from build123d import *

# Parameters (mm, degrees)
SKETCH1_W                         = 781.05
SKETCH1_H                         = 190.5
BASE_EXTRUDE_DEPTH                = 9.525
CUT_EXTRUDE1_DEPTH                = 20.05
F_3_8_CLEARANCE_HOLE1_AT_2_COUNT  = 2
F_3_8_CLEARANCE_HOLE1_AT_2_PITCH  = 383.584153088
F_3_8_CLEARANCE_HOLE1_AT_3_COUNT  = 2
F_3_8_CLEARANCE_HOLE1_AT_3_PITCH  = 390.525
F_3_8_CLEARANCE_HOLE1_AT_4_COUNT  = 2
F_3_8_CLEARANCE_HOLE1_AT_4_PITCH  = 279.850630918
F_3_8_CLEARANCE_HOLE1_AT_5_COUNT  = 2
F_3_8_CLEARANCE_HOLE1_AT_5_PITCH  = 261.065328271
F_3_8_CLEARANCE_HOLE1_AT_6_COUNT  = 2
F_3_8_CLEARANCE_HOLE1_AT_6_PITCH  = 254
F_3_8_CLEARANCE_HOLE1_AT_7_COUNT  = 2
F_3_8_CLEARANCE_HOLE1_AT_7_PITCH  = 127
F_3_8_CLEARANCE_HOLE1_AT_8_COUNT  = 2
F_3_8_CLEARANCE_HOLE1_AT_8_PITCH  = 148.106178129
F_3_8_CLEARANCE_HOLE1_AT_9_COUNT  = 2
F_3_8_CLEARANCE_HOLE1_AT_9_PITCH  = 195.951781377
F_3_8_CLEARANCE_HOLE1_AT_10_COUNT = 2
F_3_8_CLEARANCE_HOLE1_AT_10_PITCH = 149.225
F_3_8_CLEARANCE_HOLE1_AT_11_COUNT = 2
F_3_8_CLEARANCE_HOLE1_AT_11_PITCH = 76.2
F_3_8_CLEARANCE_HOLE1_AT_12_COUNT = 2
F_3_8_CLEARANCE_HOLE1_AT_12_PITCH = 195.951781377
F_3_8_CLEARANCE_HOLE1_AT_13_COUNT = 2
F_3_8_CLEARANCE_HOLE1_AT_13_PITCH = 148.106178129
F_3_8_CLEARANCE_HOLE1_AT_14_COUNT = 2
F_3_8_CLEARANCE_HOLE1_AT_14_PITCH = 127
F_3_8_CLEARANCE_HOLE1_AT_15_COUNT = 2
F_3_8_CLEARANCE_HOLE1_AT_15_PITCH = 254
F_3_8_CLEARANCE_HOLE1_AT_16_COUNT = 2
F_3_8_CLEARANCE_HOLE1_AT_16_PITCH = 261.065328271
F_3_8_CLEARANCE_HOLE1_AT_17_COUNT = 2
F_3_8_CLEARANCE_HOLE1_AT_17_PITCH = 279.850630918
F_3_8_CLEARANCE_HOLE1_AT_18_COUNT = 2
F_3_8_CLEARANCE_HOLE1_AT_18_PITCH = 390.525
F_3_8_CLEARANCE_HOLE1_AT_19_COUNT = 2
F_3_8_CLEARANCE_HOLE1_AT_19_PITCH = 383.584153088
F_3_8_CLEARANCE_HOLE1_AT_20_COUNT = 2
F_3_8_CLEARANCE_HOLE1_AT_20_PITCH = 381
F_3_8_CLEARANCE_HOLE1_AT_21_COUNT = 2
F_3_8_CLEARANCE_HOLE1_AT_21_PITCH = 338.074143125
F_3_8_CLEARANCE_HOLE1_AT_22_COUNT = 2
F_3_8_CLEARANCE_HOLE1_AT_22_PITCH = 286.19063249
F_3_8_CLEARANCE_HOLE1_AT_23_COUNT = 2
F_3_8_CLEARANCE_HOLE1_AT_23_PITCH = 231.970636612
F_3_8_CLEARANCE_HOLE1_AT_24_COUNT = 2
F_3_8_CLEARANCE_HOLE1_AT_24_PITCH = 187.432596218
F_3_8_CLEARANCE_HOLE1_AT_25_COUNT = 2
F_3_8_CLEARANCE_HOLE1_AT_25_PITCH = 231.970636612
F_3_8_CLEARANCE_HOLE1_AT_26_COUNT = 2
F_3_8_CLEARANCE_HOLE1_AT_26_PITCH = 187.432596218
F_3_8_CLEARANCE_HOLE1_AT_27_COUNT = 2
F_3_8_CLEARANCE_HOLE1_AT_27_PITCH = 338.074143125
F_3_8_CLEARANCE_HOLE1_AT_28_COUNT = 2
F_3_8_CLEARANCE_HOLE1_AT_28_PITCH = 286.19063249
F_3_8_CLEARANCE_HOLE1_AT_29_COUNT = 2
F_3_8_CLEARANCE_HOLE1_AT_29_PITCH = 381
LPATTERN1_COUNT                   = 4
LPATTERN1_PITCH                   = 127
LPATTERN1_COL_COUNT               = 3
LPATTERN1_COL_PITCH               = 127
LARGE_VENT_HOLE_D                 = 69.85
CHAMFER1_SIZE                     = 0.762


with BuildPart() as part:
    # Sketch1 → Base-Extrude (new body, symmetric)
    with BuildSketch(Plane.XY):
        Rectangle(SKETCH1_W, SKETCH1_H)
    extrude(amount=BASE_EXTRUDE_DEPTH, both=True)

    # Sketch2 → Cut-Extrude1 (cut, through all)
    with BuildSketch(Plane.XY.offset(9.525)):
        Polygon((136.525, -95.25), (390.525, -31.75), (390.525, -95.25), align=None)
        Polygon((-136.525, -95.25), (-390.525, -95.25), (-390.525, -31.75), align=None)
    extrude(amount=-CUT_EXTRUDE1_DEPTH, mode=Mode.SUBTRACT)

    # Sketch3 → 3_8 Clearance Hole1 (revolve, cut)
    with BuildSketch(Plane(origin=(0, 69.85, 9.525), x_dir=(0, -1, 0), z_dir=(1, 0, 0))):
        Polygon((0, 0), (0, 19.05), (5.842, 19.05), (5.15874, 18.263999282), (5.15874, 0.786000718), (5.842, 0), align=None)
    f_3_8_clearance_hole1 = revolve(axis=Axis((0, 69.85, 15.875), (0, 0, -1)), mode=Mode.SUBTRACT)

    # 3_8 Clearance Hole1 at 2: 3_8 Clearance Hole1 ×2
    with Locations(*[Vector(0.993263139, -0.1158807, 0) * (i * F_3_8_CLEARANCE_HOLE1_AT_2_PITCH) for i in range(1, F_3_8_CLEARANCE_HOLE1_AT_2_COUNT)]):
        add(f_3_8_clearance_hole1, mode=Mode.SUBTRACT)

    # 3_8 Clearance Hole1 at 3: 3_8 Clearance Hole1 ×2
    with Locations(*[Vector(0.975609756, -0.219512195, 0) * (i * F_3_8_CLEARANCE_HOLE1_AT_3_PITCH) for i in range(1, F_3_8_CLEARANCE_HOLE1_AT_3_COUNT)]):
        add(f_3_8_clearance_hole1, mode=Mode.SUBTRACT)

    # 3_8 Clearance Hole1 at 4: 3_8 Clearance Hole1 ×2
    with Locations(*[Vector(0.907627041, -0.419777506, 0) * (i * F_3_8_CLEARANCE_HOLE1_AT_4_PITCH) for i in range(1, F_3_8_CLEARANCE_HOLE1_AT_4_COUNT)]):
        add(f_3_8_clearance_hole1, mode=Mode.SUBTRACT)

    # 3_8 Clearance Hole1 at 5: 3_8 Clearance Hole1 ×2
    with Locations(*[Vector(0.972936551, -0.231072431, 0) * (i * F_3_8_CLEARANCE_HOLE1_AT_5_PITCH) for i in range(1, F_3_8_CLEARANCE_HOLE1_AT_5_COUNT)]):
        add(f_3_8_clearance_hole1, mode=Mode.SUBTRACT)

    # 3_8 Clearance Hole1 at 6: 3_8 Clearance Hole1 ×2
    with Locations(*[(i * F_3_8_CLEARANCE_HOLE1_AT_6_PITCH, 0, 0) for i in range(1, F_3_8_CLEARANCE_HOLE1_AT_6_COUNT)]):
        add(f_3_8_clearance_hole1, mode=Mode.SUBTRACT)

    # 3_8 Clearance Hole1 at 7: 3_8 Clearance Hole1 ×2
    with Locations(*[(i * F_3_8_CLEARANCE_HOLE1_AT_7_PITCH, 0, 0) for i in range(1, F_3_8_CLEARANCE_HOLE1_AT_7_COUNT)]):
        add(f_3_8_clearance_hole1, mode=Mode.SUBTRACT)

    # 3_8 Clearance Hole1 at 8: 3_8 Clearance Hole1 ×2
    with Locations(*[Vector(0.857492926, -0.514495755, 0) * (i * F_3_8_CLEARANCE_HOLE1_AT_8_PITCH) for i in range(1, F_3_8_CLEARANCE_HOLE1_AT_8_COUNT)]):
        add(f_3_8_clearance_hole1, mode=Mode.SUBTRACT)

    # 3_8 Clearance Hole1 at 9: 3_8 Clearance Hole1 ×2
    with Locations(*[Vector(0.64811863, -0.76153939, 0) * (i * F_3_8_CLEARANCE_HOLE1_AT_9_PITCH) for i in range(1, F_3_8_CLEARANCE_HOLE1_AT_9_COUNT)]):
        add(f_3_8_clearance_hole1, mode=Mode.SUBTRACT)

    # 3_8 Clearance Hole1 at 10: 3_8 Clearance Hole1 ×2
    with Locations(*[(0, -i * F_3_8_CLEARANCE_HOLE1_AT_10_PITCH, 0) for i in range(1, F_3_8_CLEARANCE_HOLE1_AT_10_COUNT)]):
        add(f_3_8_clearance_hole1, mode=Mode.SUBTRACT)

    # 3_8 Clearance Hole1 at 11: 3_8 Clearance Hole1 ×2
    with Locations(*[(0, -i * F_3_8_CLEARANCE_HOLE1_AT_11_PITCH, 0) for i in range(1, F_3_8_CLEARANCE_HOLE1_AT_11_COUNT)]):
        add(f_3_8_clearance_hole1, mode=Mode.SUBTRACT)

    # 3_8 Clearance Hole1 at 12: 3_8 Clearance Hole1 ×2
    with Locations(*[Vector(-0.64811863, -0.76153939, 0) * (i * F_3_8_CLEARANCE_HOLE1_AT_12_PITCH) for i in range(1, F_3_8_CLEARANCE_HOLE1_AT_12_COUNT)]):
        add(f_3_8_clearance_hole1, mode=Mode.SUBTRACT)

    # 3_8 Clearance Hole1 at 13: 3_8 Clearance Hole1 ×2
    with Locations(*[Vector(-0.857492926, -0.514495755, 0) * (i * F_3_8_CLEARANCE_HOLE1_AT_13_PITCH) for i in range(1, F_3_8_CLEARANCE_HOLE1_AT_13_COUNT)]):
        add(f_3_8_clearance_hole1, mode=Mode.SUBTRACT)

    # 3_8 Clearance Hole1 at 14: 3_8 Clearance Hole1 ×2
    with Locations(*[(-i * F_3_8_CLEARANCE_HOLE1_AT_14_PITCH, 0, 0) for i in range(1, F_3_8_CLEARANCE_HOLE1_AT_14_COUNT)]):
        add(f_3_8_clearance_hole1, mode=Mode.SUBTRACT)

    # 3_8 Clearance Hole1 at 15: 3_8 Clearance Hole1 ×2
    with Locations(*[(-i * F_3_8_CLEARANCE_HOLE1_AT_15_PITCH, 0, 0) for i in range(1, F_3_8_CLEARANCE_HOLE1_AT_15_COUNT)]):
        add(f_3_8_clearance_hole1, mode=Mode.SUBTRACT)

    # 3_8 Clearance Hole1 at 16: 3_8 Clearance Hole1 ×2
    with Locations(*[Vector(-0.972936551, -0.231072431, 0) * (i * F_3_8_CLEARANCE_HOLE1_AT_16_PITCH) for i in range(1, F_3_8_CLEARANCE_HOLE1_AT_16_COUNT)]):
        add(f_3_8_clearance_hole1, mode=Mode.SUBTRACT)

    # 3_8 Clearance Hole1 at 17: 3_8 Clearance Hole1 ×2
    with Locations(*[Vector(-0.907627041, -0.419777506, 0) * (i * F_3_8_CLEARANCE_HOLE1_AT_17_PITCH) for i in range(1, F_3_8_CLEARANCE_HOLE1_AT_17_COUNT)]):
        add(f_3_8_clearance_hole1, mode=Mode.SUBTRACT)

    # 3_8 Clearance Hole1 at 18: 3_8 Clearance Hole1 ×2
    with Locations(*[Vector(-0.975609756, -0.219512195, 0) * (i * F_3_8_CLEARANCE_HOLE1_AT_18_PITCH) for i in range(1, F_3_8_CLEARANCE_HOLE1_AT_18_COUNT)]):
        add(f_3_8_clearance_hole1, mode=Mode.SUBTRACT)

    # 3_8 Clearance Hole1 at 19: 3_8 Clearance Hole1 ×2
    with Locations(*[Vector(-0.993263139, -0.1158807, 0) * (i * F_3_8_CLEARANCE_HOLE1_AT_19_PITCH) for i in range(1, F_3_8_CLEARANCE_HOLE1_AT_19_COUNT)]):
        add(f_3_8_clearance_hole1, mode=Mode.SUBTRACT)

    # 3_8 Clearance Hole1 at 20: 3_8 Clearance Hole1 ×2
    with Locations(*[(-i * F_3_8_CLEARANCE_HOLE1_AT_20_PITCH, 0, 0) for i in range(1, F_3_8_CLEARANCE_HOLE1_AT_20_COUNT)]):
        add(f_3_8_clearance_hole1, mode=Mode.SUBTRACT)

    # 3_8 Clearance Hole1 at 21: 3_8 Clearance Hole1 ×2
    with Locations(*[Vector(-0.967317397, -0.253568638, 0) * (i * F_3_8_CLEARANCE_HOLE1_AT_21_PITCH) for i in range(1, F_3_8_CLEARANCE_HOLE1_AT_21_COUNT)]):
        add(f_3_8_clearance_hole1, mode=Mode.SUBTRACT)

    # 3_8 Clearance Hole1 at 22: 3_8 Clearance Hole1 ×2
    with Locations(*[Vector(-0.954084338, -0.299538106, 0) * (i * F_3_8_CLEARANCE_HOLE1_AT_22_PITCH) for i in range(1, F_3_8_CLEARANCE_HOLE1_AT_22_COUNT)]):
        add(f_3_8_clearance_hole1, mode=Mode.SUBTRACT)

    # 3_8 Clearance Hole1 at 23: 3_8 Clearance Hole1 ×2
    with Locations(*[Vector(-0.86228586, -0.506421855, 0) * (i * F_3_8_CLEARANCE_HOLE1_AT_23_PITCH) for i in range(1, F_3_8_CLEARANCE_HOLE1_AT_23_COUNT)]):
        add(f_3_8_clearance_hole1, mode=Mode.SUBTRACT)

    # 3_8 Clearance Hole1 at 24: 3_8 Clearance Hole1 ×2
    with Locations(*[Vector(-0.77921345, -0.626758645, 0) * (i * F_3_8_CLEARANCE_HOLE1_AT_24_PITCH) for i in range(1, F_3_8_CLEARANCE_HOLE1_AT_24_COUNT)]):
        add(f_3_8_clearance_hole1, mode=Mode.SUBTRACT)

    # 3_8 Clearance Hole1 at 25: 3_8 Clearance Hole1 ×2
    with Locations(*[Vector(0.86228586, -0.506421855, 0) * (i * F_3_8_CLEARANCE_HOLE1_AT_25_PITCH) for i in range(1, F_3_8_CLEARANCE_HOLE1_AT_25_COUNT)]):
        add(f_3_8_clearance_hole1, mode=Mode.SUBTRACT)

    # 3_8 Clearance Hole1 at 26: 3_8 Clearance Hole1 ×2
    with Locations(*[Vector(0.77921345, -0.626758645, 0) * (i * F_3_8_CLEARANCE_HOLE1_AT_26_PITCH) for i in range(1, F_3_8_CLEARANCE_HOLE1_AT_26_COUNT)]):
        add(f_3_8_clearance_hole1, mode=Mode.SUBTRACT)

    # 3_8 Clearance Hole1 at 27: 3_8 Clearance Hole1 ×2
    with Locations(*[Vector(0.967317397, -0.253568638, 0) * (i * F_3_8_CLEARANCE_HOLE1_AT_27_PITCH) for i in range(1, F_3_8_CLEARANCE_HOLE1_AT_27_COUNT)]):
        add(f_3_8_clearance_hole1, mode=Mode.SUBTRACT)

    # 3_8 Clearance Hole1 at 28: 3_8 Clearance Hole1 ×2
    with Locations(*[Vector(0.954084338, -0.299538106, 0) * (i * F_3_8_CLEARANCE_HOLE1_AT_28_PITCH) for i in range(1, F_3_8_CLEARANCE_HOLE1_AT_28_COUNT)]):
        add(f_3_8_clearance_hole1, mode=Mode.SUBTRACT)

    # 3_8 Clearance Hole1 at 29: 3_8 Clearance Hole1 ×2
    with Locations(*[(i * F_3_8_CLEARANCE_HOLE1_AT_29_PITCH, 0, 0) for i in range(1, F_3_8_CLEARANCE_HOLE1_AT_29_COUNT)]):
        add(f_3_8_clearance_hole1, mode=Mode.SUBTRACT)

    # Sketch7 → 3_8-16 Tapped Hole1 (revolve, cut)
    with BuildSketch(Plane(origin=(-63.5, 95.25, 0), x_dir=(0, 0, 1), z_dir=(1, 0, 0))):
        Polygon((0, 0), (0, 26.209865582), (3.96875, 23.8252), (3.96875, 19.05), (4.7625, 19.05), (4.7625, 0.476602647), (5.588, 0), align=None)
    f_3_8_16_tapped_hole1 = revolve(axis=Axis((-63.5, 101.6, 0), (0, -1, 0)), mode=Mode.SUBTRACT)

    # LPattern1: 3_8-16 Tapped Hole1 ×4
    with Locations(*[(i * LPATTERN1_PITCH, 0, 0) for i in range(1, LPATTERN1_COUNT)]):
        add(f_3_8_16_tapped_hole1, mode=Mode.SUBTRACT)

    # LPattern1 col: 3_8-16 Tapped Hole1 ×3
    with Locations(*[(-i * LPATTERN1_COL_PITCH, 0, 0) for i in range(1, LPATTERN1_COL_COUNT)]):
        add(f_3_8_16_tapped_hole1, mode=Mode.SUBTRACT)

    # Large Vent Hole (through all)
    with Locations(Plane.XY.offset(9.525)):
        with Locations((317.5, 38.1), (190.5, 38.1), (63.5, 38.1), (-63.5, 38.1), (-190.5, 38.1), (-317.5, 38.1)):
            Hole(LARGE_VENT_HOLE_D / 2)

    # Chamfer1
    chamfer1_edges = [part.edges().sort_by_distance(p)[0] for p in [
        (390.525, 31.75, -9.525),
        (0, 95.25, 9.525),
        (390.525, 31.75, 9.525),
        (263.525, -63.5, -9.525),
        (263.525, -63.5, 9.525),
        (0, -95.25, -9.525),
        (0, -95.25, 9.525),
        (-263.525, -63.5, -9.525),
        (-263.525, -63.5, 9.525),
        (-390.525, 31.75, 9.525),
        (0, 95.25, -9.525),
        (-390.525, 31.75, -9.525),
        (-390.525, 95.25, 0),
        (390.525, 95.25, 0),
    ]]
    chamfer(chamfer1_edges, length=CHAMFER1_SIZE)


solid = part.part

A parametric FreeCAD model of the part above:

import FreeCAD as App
import Part
import Sketcher
Q = App.Units.Quantity


def edges_at(feature, points):
    """Names of the edges that pass closest to the given points."""
    edges = feature.Shape.Edges
    near = lambda p: min(range(len(edges)), key=lambda i: edges[i].distToShape(Part.Vertex(*p))[0])
    return sorted({f"Edge{near(p) + 1}" for p in points})


def add_polygon(sketch, points):
    """Adds a closed chain of lines whose ends are joined by coincident constraints."""
    first, n = sketch.GeometryCount, len(points)
    for a, b in zip(points, points[1:] + points[:1]):
        sketch.addGeometry(Part.LineSegment(App.Vector(*a, 0), App.Vector(*b, 0)), False)
    for i in range(n):
        sketch.addConstraint(Sketcher.Constraint("Coincident", first + i, 2, first + (i + 1) % n, 1))

doc = App.newDocument("Part")
body = doc.addObject("PartDesign::Body", "Body")

# Sketch on XY plane
sketch1 = body.newObject("Sketcher::SketchObject", "Sketch")
sketch1.AttachmentSupport = (doc.getObject("XY_Plane"), [""])
sketch1.MapMode = "FlatFace"
add_polygon(sketch1, [(-391, 95), (-391, -95), (391, -95), (391, 95)])  # lines 0-3
sketch1.addConstraint([
    Sketcher.Constraint("Vertical", 0),
    Sketcher.Constraint("Horizontal", 1),
    Sketcher.Constraint("Vertical", 2),
    Sketcher.Constraint("Horizontal", 3),
    Sketcher.Constraint("Symmetric", 0, 2, 2, 2, -1, 1),
    Sketcher.Constraint("DistanceY", 0, 2, 0, 1, Q("7.5 in")),
    Sketcher.Constraint("DistanceX", 1, 1, 1, 2, Q("30.75 in")),
])
pad1 = body.newObject("PartDesign::Pad", "Pad")
pad1.Profile = sketch1
pad1.Length = Q("0.75 in")
pad1.Midplane = True

# Sketch on XY plane
sketch2 = body.newObject("Sketcher::SketchObject", "Sketch001")
sketch2.AttachmentSupport = (doc.getObject("XY_Plane"), [""])
sketch2.MapMode = "FlatFace"
sketch2.AttachmentOffset = App.Placement(App.Vector(0, 0, 0.375 * 25.4), App.Rotation())
add_polygon(sketch2, [(391, -32), (137, -95), (391, -95)])  # lines 0-2
add_polygon(sketch2, [(-391, -95), (-137, -95), (-391, -32)])  # lines 3-5
sketch2.addConstraint([
    Sketcher.Constraint("Horizontal", 1),
    Sketcher.Constraint("Vertical", 2),
    Sketcher.Constraint("Horizontal", 3),
    Sketcher.Constraint("Vertical", 5),
    Sketcher.Constraint("Symmetric", 0, 2, 3, 2, -2),
    Sketcher.Constraint("Symmetric", 2, 2, 4, 2, -2),
    Sketcher.Constraint("DistanceX", 1, 1, 1, 2, Q("10 in")),
    Sketcher.Constraint("DistanceY", 2, 1, 2, 2, Q("2.5 in")),
    Sketcher.Constraint("DistanceY", 0, 2, -1, 1, Q("3.75 in")),
    Sketcher.Constraint("DistanceX", 3, 2, 0, 2, Q("10.75 in")),
])
pocket1 = body.newObject("PartDesign::Pocket", "Pocket")
pocket1.Profile = sketch2
pocket1.Type = "ThroughAll"

# Sketch on YZ plane
sketch3 = body.newObject("Sketcher::SketchObject", "Sketch002")
sketch3.AttachmentSupport = (doc.getObject("YZ_Plane"), [""])
sketch3.MapMode = "FlatFace"
add_polygon(sketch3, [(69.8, -9.5), (69.8, 9.5), (64, 9.5), (64.7, 8.7), (64.7, -8.7), (64, -9.5)])  # lines 0-5
sketch3.addGeometry(Part.LineSegment(App.Vector(69.8, 9.5, 0), App.Vector(69.8, -9.5, 0)), True)  # axis
sketch3.addConstraint([
    Sketcher.Constraint("Vertical", 0),
    Sketcher.Constraint("Horizontal", 1),
    Sketcher.Constraint("Vertical", 3),
    Sketcher.Constraint("Horizontal", 5),
    Sketcher.Constraint("Vertical", 6),
    Sketcher.Constraint("Coincident", 6, 1, 0, 2),
    Sketcher.Constraint("Symmetric", 1, 2, 4, 2, -1),
    Sketcher.Constraint("Horizontal", 4, 2, 6, 2),
    Sketcher.Constraint("Equal", 2, 4),
    Sketcher.Constraint("Angle", 2, Q("-49 deg")),
    Sketcher.Constraint("DistanceX", 1, 2, 1, 1, Q("0.23 in")),
    Sketcher.Constraint("DistanceY", 0, 1, 0, 2, Q("0.75 in")),
    Sketcher.Constraint("DistanceX", -1, 1, 0, 2, Q("2.75 in")),
    Sketcher.Constraint("DistanceY", 3, 2, 3, 1, 17.477999),
])
groove = body.newObject("PartDesign::Groove", "Groove")
groove.Profile = sketch3
groove.ReferenceAxis = (sketch3, ["Axis0"])
groove.Angle = 360
doc.recompute()

datumline = body.newObject("PartDesign::Line", "DatumLine")
datumline.Placement = App.Placement(App.Vector(0, 0, 0), App.Rotation(App.Vector(0, 0, 1), App.Vector(0.993263139, -0.1158807, 0)))
linearpattern = body.newObject("PartDesign::LinearPattern", "LinearPattern")
linearpattern.Originals = [groove]
linearpattern.Direction = (datumline, [""])
linearpattern.Mode = "offset"
linearpattern.Offset = 383.584153
linearpattern.Occurrences = 2
body.Tip = linearpattern
doc.recompute()

datumline2 = body.newObject("PartDesign::Line", "DatumLine001")
datumline2.Placement = App.Placement(App.Vector(0, 0, 0), App.Rotation(App.Vector(0, 0, 1), App.Vector(0.975609756, -0.219512195, 0)))
linearpattern2 = body.newObject("PartDesign::LinearPattern", "LinearPattern001")
linearpattern2.Originals = [groove]
linearpattern2.Direction = (datumline2, [""])
linearpattern2.Mode = "offset"
linearpattern2.Offset = Q("15.375 in")
linearpattern2.Occurrences = 2
body.Tip = linearpattern2
doc.recompute()

datumline3 = body.newObject("PartDesign::Line", "DatumLine002")
datumline3.Placement = App.Placement(App.Vector(0, 0, 0), App.Rotation(App.Vector(0, 0, 1), App.Vector(0.907627041, -0.419777506, 0)))
linearpattern3 = body.newObject("PartDesign::LinearPattern", "LinearPattern002")
linearpattern3.Originals = [groove]
linearpattern3.Direction = (datumline3, [""])
linearpattern3.Mode = "offset"
linearpattern3.Offset = 279.850631
linearpattern3.Occurrences = 2
body.Tip = linearpattern3
doc.recompute()

datumline4 = body.newObject("PartDesign::Line", "DatumLine003")
datumline4.Placement = App.Placement(App.Vector(0, 0, 0), App.Rotation(App.Vector(0, 0, 1), App.Vector(0.972936551, -0.231072431, 0)))
linearpattern4 = body.newObject("PartDesign::LinearPattern", "LinearPattern003")
linearpattern4.Originals = [groove]
linearpattern4.Direction = (datumline4, [""])
linearpattern4.Mode = "offset"
linearpattern4.Offset = 261.065328
linearpattern4.Occurrences = 2
body.Tip = linearpattern4
doc.recompute()

linearpattern5 = body.newObject("PartDesign::LinearPattern", "LinearPattern004")
linearpattern5.Originals = [groove]
linearpattern5.Direction = (doc.getObject("X_Axis"), [""])
linearpattern5.Mode = "offset"
linearpattern5.Offset = Q("10 in")
linearpattern5.Occurrences = 2
body.Tip = linearpattern5
doc.recompute()

linearpattern6 = body.newObject("PartDesign::LinearPattern", "LinearPattern005")
linearpattern6.Originals = [groove]
linearpattern6.Direction = (doc.getObject("X_Axis"), [""])
linearpattern6.Mode = "offset"
linearpattern6.Offset = Q("5 in")
linearpattern6.Occurrences = 2
body.Tip = linearpattern6
doc.recompute()

datumline5 = body.newObject("PartDesign::Line", "DatumLine004")
datumline5.Placement = App.Placement(App.Vector(0, 0, 0), App.Rotation(App.Vector(0, 0, 1), App.Vector(0.857492926, -0.514495755, 0)))
linearpattern7 = body.newObject("PartDesign::LinearPattern", "LinearPattern006")
linearpattern7.Originals = [groove]
linearpattern7.Direction = (datumline5, [""])
linearpattern7.Mode = "offset"
linearpattern7.Offset = 148.106178
linearpattern7.Occurrences = 2
body.Tip = linearpattern7
doc.recompute()

datumline6 = body.newObject("PartDesign::Line", "DatumLine005")
datumline6.Placement = App.Placement(App.Vector(0, 0, 0), App.Rotation(App.Vector(0, 0, 1), App.Vector(0.64811863, -0.76153939, 0)))
linearpattern8 = body.newObject("PartDesign::LinearPattern", "LinearPattern007")
linearpattern8.Originals = [groove]
linearpattern8.Direction = (datumline6, [""])
linearpattern8.Mode = "offset"
linearpattern8.Offset = 195.951781
linearpattern8.Occurrences = 2
body.Tip = linearpattern8
doc.recompute()

linearpattern9 = body.newObject("PartDesign::LinearPattern", "LinearPattern008")
linearpattern9.Originals = [groove]
linearpattern9.Direction = (doc.getObject("Y_Axis"), [""])
linearpattern9.Mode = "offset"
linearpattern9.Offset = Q("5.875 in")
linearpattern9.Occurrences = 2
linearpattern9.Reversed = True
body.Tip = linearpattern9
doc.recompute()

linearpattern10 = body.newObject("PartDesign::LinearPattern", "LinearPattern009")
linearpattern10.Originals = [groove]
linearpattern10.Direction = (doc.getObject("Y_Axis"), [""])
linearpattern10.Mode = "offset"
linearpattern10.Offset = Q("3 in")
linearpattern10.Occurrences = 2
linearpattern10.Reversed = True
body.Tip = linearpattern10
doc.recompute()

datumline7 = body.newObject("PartDesign::Line", "DatumLine006")
datumline7.Placement = App.Placement(App.Vector(0, 0, 0), App.Rotation(App.Vector(0, 0, 1), App.Vector(-0.64811863, -0.76153939, 0)))
linearpattern11 = body.newObject("PartDesign::LinearPattern", "LinearPattern010")
linearpattern11.Originals = [groove]
linearpattern11.Direction = (datumline7, [""])
linearpattern11.Mode = "offset"
linearpattern11.Offset = 195.951781
linearpattern11.Occurrences = 2
body.Tip = linearpattern11
doc.recompute()

datumline8 = body.newObject("PartDesign::Line", "DatumLine007")
datumline8.Placement = App.Placement(App.Vector(0, 0, 0), App.Rotation(App.Vector(0, 0, 1), App.Vector(-0.857492926, -0.514495755, 0)))
linearpattern12 = body.newObject("PartDesign::LinearPattern", "LinearPattern011")
linearpattern12.Originals = [groove]
linearpattern12.Direction = (datumline8, [""])
linearpattern12.Mode = "offset"
linearpattern12.Offset = 148.106178
linearpattern12.Occurrences = 2
body.Tip = linearpattern12
doc.recompute()

linearpattern13 = body.newObject("PartDesign::LinearPattern", "LinearPattern012")
linearpattern13.Originals = [groove]
linearpattern13.Direction = (doc.getObject("X_Axis"), [""])
linearpattern13.Mode = "offset"
linearpattern13.Offset = Q("5 in")
linearpattern13.Occurrences = 2
linearpattern13.Reversed = True
body.Tip = linearpattern13
doc.recompute()

linearpattern14 = body.newObject("PartDesign::LinearPattern", "LinearPattern013")
linearpattern14.Originals = [groove]
linearpattern14.Direction = (doc.getObject("X_Axis"), [""])
linearpattern14.Mode = "offset"
linearpattern14.Offset = Q("10 in")
linearpattern14.Occurrences = 2
linearpattern14.Reversed = True
body.Tip = linearpattern14
doc.recompute()

datumline9 = body.newObject("PartDesign::Line", "DatumLine008")
datumline9.Placement = App.Placement(App.Vector(0, 0, 0), App.Rotation(App.Vector(0, 0, 1), App.Vector(-0.972936551, -0.231072431, 0)))
linearpattern15 = body.newObject("PartDesign::LinearPattern", "LinearPattern014")
linearpattern15.Originals = [groove]
linearpattern15.Direction = (datumline9, [""])
linearpattern15.Mode = "offset"
linearpattern15.Offset = 261.065328
linearpattern15.Occurrences = 2
body.Tip = linearpattern15
doc.recompute()

datumline10 = body.newObject("PartDesign::Line", "DatumLine009")
datumline10.Placement = App.Placement(App.Vector(0, 0, 0), App.Rotation(App.Vector(0, 0, 1), App.Vector(-0.907627041, -0.419777506, 0)))
linearpattern16 = body.newObject("PartDesign::LinearPattern", "LinearPattern015")
linearpattern16.Originals = [groove]
linearpattern16.Direction = (datumline10, [""])
linearpattern16.Mode = "offset"
linearpattern16.Offset = 279.850631
linearpattern16.Occurrences = 2
body.Tip = linearpattern16
doc.recompute()

datumline11 = body.newObject("PartDesign::Line", "DatumLine010")
datumline11.Placement = App.Placement(App.Vector(0, 0, 0), App.Rotation(App.Vector(0, 0, 1), App.Vector(-0.975609756, -0.219512195, 0)))
linearpattern17 = body.newObject("PartDesign::LinearPattern", "LinearPattern016")
linearpattern17.Originals = [groove]
linearpattern17.Direction = (datumline11, [""])
linearpattern17.Mode = "offset"
linearpattern17.Offset = Q("15.375 in")
linearpattern17.Occurrences = 2
body.Tip = linearpattern17
doc.recompute()

datumline12 = body.newObject("PartDesign::Line", "DatumLine011")
datumline12.Placement = App.Placement(App.Vector(0, 0, 0), App.Rotation(App.Vector(0, 0, 1), App.Vector(-0.993263139, -0.1158807, 0)))
linearpattern18 = body.newObject("PartDesign::LinearPattern", "LinearPattern017")
linearpattern18.Originals = [groove]
linearpattern18.Direction = (datumline12, [""])
linearpattern18.Mode = "offset"
linearpattern18.Offset = 383.584153
linearpattern18.Occurrences = 2
body.Tip = linearpattern18
doc.recompute()

linearpattern19 = body.newObject("PartDesign::LinearPattern", "LinearPattern018")
linearpattern19.Originals = [groove]
linearpattern19.Direction = (doc.getObject("X_Axis"), [""])
linearpattern19.Mode = "offset"
linearpattern19.Offset = Q("15 in")
linearpattern19.Occurrences = 2
linearpattern19.Reversed = True
body.Tip = linearpattern19
doc.recompute()

datumline13 = body.newObject("PartDesign::Line", "DatumLine012")
datumline13.Placement = App.Placement(App.Vector(0, 0, 0), App.Rotation(App.Vector(0, 0, 1), App.Vector(-0.967317397, -0.253568638, 0)))
linearpattern20 = body.newObject("PartDesign::LinearPattern", "LinearPattern019")
linearpattern20.Originals = [groove]
linearpattern20.Direction = (datumline13, [""])
linearpattern20.Mode = "offset"
linearpattern20.Offset = 338.074143
linearpattern20.Occurrences = 2
body.Tip = linearpattern20
doc.recompute()

datumline14 = body.newObject("PartDesign::Line", "DatumLine013")
datumline14.Placement = App.Placement(App.Vector(0, 0, 0), App.Rotation(App.Vector(0, 0, 1), App.Vector(-0.954084338, -0.299538106, 0)))
linearpattern21 = body.newObject("PartDesign::LinearPattern", "LinearPattern020")
linearpattern21.Originals = [groove]
linearpattern21.Direction = (datumline14, [""])
linearpattern21.Mode = "offset"
linearpattern21.Offset = 286.190633
linearpattern21.Occurrences = 2
body.Tip = linearpattern21
doc.recompute()

datumline15 = body.newObject("PartDesign::Line", "DatumLine014")
datumline15.Placement = App.Placement(App.Vector(0, 0, 0), App.Rotation(App.Vector(0, 0, 1), App.Vector(-0.86228586, -0.506421855, 0)))
linearpattern22 = body.newObject("PartDesign::LinearPattern", "LinearPattern021")
linearpattern22.Originals = [groove]
linearpattern22.Direction = (datumline15, [""])
linearpattern22.Mode = "offset"
linearpattern22.Offset = 231.970637
linearpattern22.Occurrences = 2
body.Tip = linearpattern22
doc.recompute()

datumline16 = body.newObject("PartDesign::Line", "DatumLine015")
datumline16.Placement = App.Placement(App.Vector(0, 0, 0), App.Rotation(App.Vector(0, 0, 1), App.Vector(-0.77921345, -0.626758645, 0)))
linearpattern23 = body.newObject("PartDesign::LinearPattern", "LinearPattern022")
linearpattern23.Originals = [groove]
linearpattern23.Direction = (datumline16, [""])
linearpattern23.Mode = "offset"
linearpattern23.Offset = 187.432596
linearpattern23.Occurrences = 2
body.Tip = linearpattern23
doc.recompute()

datumline17 = body.newObject("PartDesign::Line", "DatumLine016")
datumline17.Placement = App.Placement(App.Vector(0, 0, 0), App.Rotation(App.Vector(0, 0, 1), App.Vector(0.86228586, -0.506421855, 0)))
linearpattern24 = body.newObject("PartDesign::LinearPattern", "LinearPattern023")
linearpattern24.Originals = [groove]
linearpattern24.Direction = (datumline17, [""])
linearpattern24.Mode = "offset"
linearpattern24.Offset = 231.970637
linearpattern24.Occurrences = 2
body.Tip = linearpattern24
doc.recompute()

datumline18 = body.newObject("PartDesign::Line", "DatumLine017")
datumline18.Placement = App.Placement(App.Vector(0, 0, 0), App.Rotation(App.Vector(0, 0, 1), App.Vector(0.77921345, -0.626758645, 0)))
linearpattern25 = body.newObject("PartDesign::LinearPattern", "LinearPattern024")
linearpattern25.Originals = [groove]
linearpattern25.Direction = (datumline18, [""])
linearpattern25.Mode = "offset"
linearpattern25.Offset = 187.432596
linearpattern25.Occurrences = 2
body.Tip = linearpattern25
doc.recompute()

datumline19 = body.newObject("PartDesign::Line", "DatumLine018")
datumline19.Placement = App.Placement(App.Vector(0, 0, 0), App.Rotation(App.Vector(0, 0, 1), App.Vector(0.967317397, -0.253568638, 0)))
linearpattern26 = body.newObject("PartDesign::LinearPattern", "LinearPattern025")
linearpattern26.Originals = [groove]
linearpattern26.Direction = (datumline19, [""])
linearpattern26.Mode = "offset"
linearpattern26.Offset = 338.074143
linearpattern26.Occurrences = 2
body.Tip = linearpattern26
doc.recompute()

datumline20 = body.newObject("PartDesign::Line", "DatumLine019")
datumline20.Placement = App.Placement(App.Vector(0, 0, 0), App.Rotation(App.Vector(0, 0, 1), App.Vector(0.954084338, -0.299538106, 0)))
linearpattern27 = body.newObject("PartDesign::LinearPattern", "LinearPattern026")
linearpattern27.Originals = [groove]
linearpattern27.Direction = (datumline20, [""])
linearpattern27.Mode = "offset"
linearpattern27.Offset = 286.190633
linearpattern27.Occurrences = 2
body.Tip = linearpattern27
doc.recompute()

linearpattern28 = body.newObject("PartDesign::LinearPattern", "LinearPattern027")
linearpattern28.Originals = [groove]
linearpattern28.Direction = (doc.getObject("X_Axis"), [""])
linearpattern28.Mode = "offset"
linearpattern28.Offset = Q("15 in")
linearpattern28.Occurrences = 2
body.Tip = linearpattern28

# Sketch on YZ plane
sketch4 = body.newObject("Sketcher::SketchObject", "Sketch003")
sketch4.AttachmentSupport = (doc.getObject("YZ_Plane"), [""])
sketch4.MapMode = "FlatFace"
sketch4.AttachmentOffset = App.Placement(App.Vector(0, 0, -2.5 * 25.4), App.Rotation())
add_polygon(sketch4, [(69, 0), (95.2, 0), (95.2, 5.6), (94.8, 4.8), (76.2, 4.8), (76.2, 4), (71.4, 4)])  # lines 0-6
sketch4.addConstraint([
    Sketcher.Constraint("Horizontal", 0),
    Sketcher.Constraint("Vertical", 1),
    Sketcher.Constraint("Horizontal", 3),
    Sketcher.Constraint("Vertical", 4),
    Sketcher.Constraint("Horizontal", 5),
    Sketcher.Constraint("PointOnObject", 0, 2, -1),
    Sketcher.Constraint("DistanceX", -1, 1, 3, 2, Q("3 in")),
    Sketcher.Constraint("Angle", 2, Q("-120 deg")),
    Sketcher.Constraint("Angle", 6, Q("-121 deg")),
    Sketcher.Constraint("DistanceY", 1, 1, 1, 2, Q("0.22 in")),
    Sketcher.Constraint("DistanceX", 5, 2, 5, 1, Q("0.188 in")),
    Sketcher.Constraint("DistanceY", 4, 2, 4, 1, Q("0.03125 in")),
    Sketcher.Constraint("DistanceX", -1, 1, 0, 2, Q("3.75 in")),
    Sketcher.Constraint("DistanceY", -1, 1, 2, 2, Q("0.1875 in")),
])
groove2 = body.newObject("PartDesign::Groove", "Groove001")
groove2.Profile = sketch4
groove2.ReferenceAxis = (sketch4, ["H_Axis"])
groove2.Angle = 360
doc.recompute()

linearpattern29 = body.newObject("PartDesign::LinearPattern", "LinearPattern028")
linearpattern29.Originals = [groove2]
linearpattern29.Direction = (doc.getObject("X_Axis"), [""])
linearpattern29.Mode = "offset"
linearpattern29.Offset = Q("5 in")
linearpattern29.Occurrences = 4
body.Tip = linearpattern29
doc.recompute()

linearpattern30 = body.newObject("PartDesign::LinearPattern", "LinearPattern029")
linearpattern30.Originals = [groove2]
linearpattern30.Direction = (doc.getObject("X_Axis"), [""])
linearpattern30.Mode = "offset"
linearpattern30.Offset = Q("5 in")
linearpattern30.Occurrences = 3
linearpattern30.Reversed = True
body.Tip = linearpattern30

# Sketch on XY plane
sketch5 = body.newObject("Sketcher::SketchObject", "Sketch004")
sketch5.AttachmentSupport = (doc.getObject("XY_Plane"), [""])
sketch5.MapMode = "FlatFace"
sketch5.AttachmentOffset = App.Placement(App.Vector(0, 0, 0.375 * 25.4), App.Rotation())
sketch5.addGeometry([
    Part.Circle(App.Vector(318, 38, 0), App.Vector(0, 0, 1), 35),  # 0
    Part.Circle(App.Vector(190, 38, 0), App.Vector(0, 0, 1), 35),  # 1
    Part.Circle(App.Vector(64, 38, 0), App.Vector(0, 0, 1), 35),  # 2
    Part.Circle(App.Vector(-64, 38, 0), App.Vector(0, 0, 1), 35),  # 3
    Part.Circle(App.Vector(-190, 38, 0), App.Vector(0, 0, 1), 35),  # 4
    Part.Circle(App.Vector(-318, 38, 0), App.Vector(0, 0, 1), 35),  # 5
], False)
sketch5.addConstraint([
    Sketcher.Constraint("Equal", 0, 1),
    Sketcher.Constraint("Equal", 1, 2),
    Sketcher.Constraint("Equal", 2, 3),
    Sketcher.Constraint("Equal", 3, 4),
    Sketcher.Constraint("Equal", 4, 5),
    Sketcher.Constraint("Symmetric", 2, 3, 3, 3, -2),
    Sketcher.Constraint("Symmetric", 1, 3, 4, 3, -2),
    Sketcher.Constraint("Symmetric", 0, 3, 5, 3, -2),
    Sketcher.Constraint("Horizontal", 0, 3, 1, 3),
    Sketcher.Constraint("Horizontal", 1, 3, 2, 3),
    Sketcher.Constraint("Diameter", 0, Q("2.75 in")),
    Sketcher.Constraint("DistanceX", 1, 3, 0, 3, Q("5 in")),
    Sketcher.Constraint("DistanceX", 2, 3, 1, 3, Q("5 in")),
    Sketcher.Constraint("DistanceX", 3, 3, 2, 3, Q("5 in")),
    Sketcher.Constraint("DistanceY", -1, 1, 0, 3, Q("1.5 in")),
])
doc.recompute()
hole = body.newObject("PartDesign::Hole", "Hole")
hole.Profile = sketch5
hole.ThreadType = "None"
hole.Diameter = Q("2.75 in")
hole.DepthType = "ThroughAll"
doc.recompute()

chamfer = body.newObject("PartDesign::Chamfer", "Chamfer")
chamfer.Base = (hole, edges_at(hole, [
    (390.525, 31.75, -9.525),
    (0, 95.25, 9.525),
    (390.525, 31.75, 9.525),
    (263.525, -63.5, -9.525),
    (263.525, -63.5, 9.525),
    (0, -95.25, -9.525),
    (0, -95.25, 9.525),
    (-263.525, -63.5, -9.525),
    (-263.525, -63.5, 9.525),
    (-390.525, 31.75, 9.525),
    (0, 95.25, -9.525),
    (-390.525, 31.75, -9.525),
    (-390.525, 95.25, 0),
    (390.525, 95.25, 0),
]))
chamfer.Size = Q("0.03 in")

doc.recompute()
